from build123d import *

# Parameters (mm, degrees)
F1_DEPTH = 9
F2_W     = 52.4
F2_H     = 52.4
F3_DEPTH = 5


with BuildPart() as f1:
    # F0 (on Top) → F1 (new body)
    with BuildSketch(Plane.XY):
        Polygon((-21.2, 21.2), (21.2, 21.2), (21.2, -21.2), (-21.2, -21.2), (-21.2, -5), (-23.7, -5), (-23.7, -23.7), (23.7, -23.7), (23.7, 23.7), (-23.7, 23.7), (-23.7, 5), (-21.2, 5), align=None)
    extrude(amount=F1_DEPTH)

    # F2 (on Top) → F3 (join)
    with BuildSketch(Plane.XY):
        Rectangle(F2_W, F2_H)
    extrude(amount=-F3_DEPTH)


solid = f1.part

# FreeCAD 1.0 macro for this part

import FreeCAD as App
import Part
import Sketcher
from FreeCAD import Vector

doc = App.newDocument("Part")
body = doc.addObject("PartDesign::Body", "Body")

# Sketch on XY plane
sketch1 = doc.addObject("Sketcher::SketchObject", "Sketch")
body.addObject(sketch1)
sketch1.AttachmentSupport = (doc.XY_Plane, [""])
sketch1.MapMode = "FlatFace"
sketch1.addGeometry([
    Part.LineSegment(Vector(-21.2, 21.2, 0), Vector(21.2, 21.2, 0)),  # 0
    Part.LineSegment(Vector(21.2, 21.2, 0), Vector(21.2, -21.2, 0)),  # 1
    Part.LineSegment(Vector(21.2, -21.2, 0), Vector(-21.2, -21.2, 0)),  # 2
    Part.LineSegment(Vector(-21.2, -21.2, 0), Vector(-21.2, -5, 0)),  # 3
    Part.LineSegment(Vector(-21.2, -5, 0), Vector(-23.7, -5, 0)),  # 4
    Part.LineSegment(Vector(-23.7, -5, 0), Vector(-23.7, -23.7, 0)),  # 5
    Part.LineSegment(Vector(-23.7, -23.7, 0), Vector(23.7, -23.7, 0)),  # 6
    Part.LineSegment(Vector(23.7, -23.7, 0), Vector(23.7, 23.7, 0)),  # 7
    Part.LineSegment(Vector(23.7, 23.7, 0), Vector(-23.7, 23.7, 0)),  # 8
    Part.LineSegment(Vector(-23.7, 23.7, 0), Vector(-23.7, 5, 0)),  # 9
    Part.LineSegment(Vector(-23.7, 5, 0), Vector(-21.2, 5, 0)),  # 10
    Part.LineSegment(Vector(-21.2, 5, 0), Vector(-21.2, 21.2, 0)),  # 11
], False)
sketch1.addConstraint([
    Sketcher.Constraint("Coincident", 0, 2, 1, 1),
    Sketcher.Constraint("Coincident", 1, 2, 2, 1),
    Sketcher.Constraint("Coincident", 2, 2, 3, 1),
    Sketcher.Constraint("Coincident", 3, 2, 4, 1),
    Sketcher.Constraint("Coincident", 4, 2, 5, 1),
    Sketcher.Constraint("Coincident", 5, 2, 6, 1),
    Sketcher.Constraint("Coincident", 6, 2, 7, 1),
    Sketcher.Constraint("Coincident", 7, 2, 8, 1),
    Sketcher.Constraint("Coincident", 8, 2, 9, 1),
    Sketcher.Constraint("Coincident", 9, 2, 10, 1),
    Sketcher.Constraint("Coincident", 10, 2, 11, 1),
    Sketcher.Constraint("Coincident", 11, 2, 0, 1),
    Sketcher.Constraint("Horizontal", 0),
    Sketcher.Constraint("Vertical", 1),
    Sketcher.Constraint("Horizontal", 2),
    Sketcher.Constraint("Vertical", 3),
    Sketcher.Constraint("Horizontal", 4),
    Sketcher.Constraint("Vertical", 5),
    Sketcher.Constraint("Horizontal", 6),
    Sketcher.Constraint("Vertical", 7),
    Sketcher.Constraint("Horizontal", 8),
    Sketcher.Constraint("Vertical", 9),
    Sketcher.Constraint("Horizontal", 10),
    Sketcher.Constraint("Vertical", 11),
    Sketcher.Constraint("Symmetric", 0, 2, 2, 2, -1, 1),
    Sketcher.Constraint("Symmetric", 5, 2, 7, 2, -1, 1),
    Sketcher.Constraint("Symmetric", 4, 2, 9, 2, -1),
    Sketcher.Constraint("Vertical", 3, 2, 10, 2),
    Sketcher.Constraint("Equal", 2, 1),
    Sketcher.Constraint("Equal", 8, 7),
    Sketcher.Constraint("DistanceX", 0, 1, 0, 2, 42.4),
    Sketcher.Constraint("DistanceX", 4, 2, 4, 1, 2.5),
    Sketcher.Constraint("DistanceY", 3, 1, 3, 2, 16.2),
])
pad1 = doc.addObject("PartDesign::Pad", "Pad")
body.addObject(pad1)
pad1.Profile = sketch1
pad1.Length = 9

# Sketch on XY plane
sketch2 = doc.addObject("Sketcher::SketchObject", "Sketch001")
body.addObject(sketch2)
sketch2.AttachmentSupport = (doc.XY_Plane, [""])
sketch2.MapMode = "FlatFace"
sketch2.addGeometry([
    Part.LineSegment(Vector(-26.2, 26.2, 0), Vector(-26.2, -26.2, 0)),
    Part.LineSegment(Vector(-26.2, -26.2, 0), Vector(26.2, -26.2, 0)),
    Part.LineSegment(Vector(26.2, -26.2, 0), Vector(26.2, 26.2, 0)),
    Part.LineSegment(Vector(26.2, 26.2, 0), Vector(-26.2, 26.2, 0)),
], False)
sketch2.addConstraint([
    Sketcher.Constraint("Coincident", 0, 2, 1, 1),
    Sketcher.Constraint("Coincident", 1, 2, 2, 1),
    Sketcher.Constraint("Coincident", 2, 2, 3, 1),
    Sketcher.Constraint("Coincident", 3, 2, 0, 1),
    Sketcher.Constraint("Vertical", 0),
    Sketcher.Constraint("Horizontal", 1),
    Sketcher.Constraint("Vertical", 2),
    Sketcher.Constraint("Horizontal", 3),
    Sketcher.Constraint("Symmetric", 0, 2, 2, 2, -1, 1),
    Sketcher.Constraint("Equal", 3, 0),
    Sketcher.Constraint("DistanceX", 1, 1, 1, 2, 52.4),
])
pad2 = doc.addObject("PartDesign::Pad", "Pad001")
body.addObject(pad2)
pad2.Profile = sketch2
pad2.Length = 5
pad2.Reversed = True

doc.recompute()
